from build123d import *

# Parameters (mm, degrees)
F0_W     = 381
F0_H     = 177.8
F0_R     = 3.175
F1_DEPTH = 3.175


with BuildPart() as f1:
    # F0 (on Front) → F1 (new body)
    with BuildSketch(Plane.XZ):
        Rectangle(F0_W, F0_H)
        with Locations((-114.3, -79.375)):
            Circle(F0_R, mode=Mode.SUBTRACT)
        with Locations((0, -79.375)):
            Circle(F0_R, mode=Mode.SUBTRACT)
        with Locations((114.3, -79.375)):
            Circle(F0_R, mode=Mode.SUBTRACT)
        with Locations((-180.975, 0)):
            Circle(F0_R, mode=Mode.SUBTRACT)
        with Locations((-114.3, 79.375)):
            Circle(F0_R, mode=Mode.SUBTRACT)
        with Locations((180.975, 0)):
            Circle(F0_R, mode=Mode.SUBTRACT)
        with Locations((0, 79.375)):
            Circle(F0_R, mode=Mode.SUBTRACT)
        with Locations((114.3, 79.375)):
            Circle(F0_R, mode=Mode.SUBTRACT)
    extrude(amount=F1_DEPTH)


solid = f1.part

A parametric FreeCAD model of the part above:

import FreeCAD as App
import Part
import Sketcher

V = App.Vector
Q = App.Units.Quantity

doc = App.newDocument("Part")
body = doc.addObject("PartDesign::Body", "Body")

sketch1 = body.newObject("Sketcher::SketchObject", "Sketch")
sketch1.AttachmentSupport = (doc.getObject("XZ_Plane"), [""])
sketch1.MapMode = "FlatFace"
sketch1.addGeometry([
    Part.LineSegment(V(-190.5, 88.9, 0), V(-190.5, -88.9, 0)),
    Part.LineSegment(V(-190.5, -88.9, 0), V(190.5, -88.9, 0)),
    Part.LineSegment(V(190.5, -88.9, 0), V(190.5, 88.9, 0)),
    Part.LineSegment(V(190.5, 88.9, 0), V(-190.5, 88.9, 0)),
    Part.Circle(V(-114.3, -79.4, 0), V(0, 0, 1), 3.2),
    Part.Circle(V(0, -79.4, 0), V(0, 0, 1), 3.2),
    Part.Circle(V(114.3, -79.4, 0), V(0, 0, 1), 3.2),
    Part.Circle(V(-181, 0, 0), V(0, 0, 1), 3.2),
    Part.Circle(V(-114.3, 79.4, 0), V(0, 0, 1), 3.2),
    Part.Circle(V(181, 0, 0), V(0, 0, 1), 3.2),
    Part.Circle(V(0, 79.4, 0), V(0, 0, 1), 3.2),
    Part.Circle(V(114.3, 79.4, 0), V(0, 0, 1), 3.2),
], False)
sketch1.addConstraint([
    Sketcher.Constraint("Coincident", 0, 2, 1, 1),
    Sketcher.Constraint("Coincident", 1, 2, 2, 1),
    Sketcher.Constraint("Coincident", 2, 2, 3, 1),
    Sketcher.Constraint("Coincident", 3, 2, 0, 1),
    Sketcher.Constraint("Vertical", 0),
    Sketcher.Constraint("Horizontal", 1),
    Sketcher.Constraint("Vertical", 2),
    Sketcher.Constraint("Horizontal", 3),
    Sketcher.Constraint("Equal", 4, 5),
    Sketcher.Constraint("Equal", 5, 6),
    Sketcher.Constraint("Equal", 6, 7),
    Sketcher.Constraint("Equal", 7, 8),
    Sketcher.Constraint("Equal", 8, 9),
    Sketcher.Constraint("Equal", 9, 10),
    Sketcher.Constraint("Equal", 10, 11),
    Sketcher.Constraint("Symmetric", 6, 3, 8, 3, -1, 1),
    Sketcher.Constraint("Symmetric", 7, 3, 9, 3, -1, 1),
    Sketcher.Constraint("Symmetric", 5, 3, 10, 3, -1, 1),
    Sketcher.Constraint("Symmetric", 4, 3, 11, 3, -1, 1),
    Sketcher.Constraint("Symmetric", 0, 2, 2, 2, -1, 1),
    Sketcher.Constraint("Symmetric", 4, 3, 6, 3, -2),
    Sketcher.Constraint("PointOnObject", 5, 3, -2),
    Sketcher.Constraint("PointOnObject", 7, 3, -1),
    Sketcher.Constraint("Horizontal", 4, 3, 5, 3),
    Sketcher.Constraint("Diameter", 4, Q("0.25 in")),
    Sketcher.Constraint("DistanceX", 1, 1, 1, 2, Q("15 in")),
    Sketcher.Constraint("DistanceY", 0, 2, 0, 1, Q("7 in")),
    Sketcher.Constraint("DistanceX", 4, 3, 6, 3, Q("9 in")),
    Sketcher.Constraint("DistanceY", 4, 3, 8, 3, Q("6.25 in")),
    Sketcher.Constraint("DistanceX", 7, 3, 9, 3, Q("14.25 in")),
])
pad1 = body.newObject("PartDesign::Pad", "Pad")
pad1.Profile = sketch1
pad1.Length = Q("0.125 in")

doc.recompute()
